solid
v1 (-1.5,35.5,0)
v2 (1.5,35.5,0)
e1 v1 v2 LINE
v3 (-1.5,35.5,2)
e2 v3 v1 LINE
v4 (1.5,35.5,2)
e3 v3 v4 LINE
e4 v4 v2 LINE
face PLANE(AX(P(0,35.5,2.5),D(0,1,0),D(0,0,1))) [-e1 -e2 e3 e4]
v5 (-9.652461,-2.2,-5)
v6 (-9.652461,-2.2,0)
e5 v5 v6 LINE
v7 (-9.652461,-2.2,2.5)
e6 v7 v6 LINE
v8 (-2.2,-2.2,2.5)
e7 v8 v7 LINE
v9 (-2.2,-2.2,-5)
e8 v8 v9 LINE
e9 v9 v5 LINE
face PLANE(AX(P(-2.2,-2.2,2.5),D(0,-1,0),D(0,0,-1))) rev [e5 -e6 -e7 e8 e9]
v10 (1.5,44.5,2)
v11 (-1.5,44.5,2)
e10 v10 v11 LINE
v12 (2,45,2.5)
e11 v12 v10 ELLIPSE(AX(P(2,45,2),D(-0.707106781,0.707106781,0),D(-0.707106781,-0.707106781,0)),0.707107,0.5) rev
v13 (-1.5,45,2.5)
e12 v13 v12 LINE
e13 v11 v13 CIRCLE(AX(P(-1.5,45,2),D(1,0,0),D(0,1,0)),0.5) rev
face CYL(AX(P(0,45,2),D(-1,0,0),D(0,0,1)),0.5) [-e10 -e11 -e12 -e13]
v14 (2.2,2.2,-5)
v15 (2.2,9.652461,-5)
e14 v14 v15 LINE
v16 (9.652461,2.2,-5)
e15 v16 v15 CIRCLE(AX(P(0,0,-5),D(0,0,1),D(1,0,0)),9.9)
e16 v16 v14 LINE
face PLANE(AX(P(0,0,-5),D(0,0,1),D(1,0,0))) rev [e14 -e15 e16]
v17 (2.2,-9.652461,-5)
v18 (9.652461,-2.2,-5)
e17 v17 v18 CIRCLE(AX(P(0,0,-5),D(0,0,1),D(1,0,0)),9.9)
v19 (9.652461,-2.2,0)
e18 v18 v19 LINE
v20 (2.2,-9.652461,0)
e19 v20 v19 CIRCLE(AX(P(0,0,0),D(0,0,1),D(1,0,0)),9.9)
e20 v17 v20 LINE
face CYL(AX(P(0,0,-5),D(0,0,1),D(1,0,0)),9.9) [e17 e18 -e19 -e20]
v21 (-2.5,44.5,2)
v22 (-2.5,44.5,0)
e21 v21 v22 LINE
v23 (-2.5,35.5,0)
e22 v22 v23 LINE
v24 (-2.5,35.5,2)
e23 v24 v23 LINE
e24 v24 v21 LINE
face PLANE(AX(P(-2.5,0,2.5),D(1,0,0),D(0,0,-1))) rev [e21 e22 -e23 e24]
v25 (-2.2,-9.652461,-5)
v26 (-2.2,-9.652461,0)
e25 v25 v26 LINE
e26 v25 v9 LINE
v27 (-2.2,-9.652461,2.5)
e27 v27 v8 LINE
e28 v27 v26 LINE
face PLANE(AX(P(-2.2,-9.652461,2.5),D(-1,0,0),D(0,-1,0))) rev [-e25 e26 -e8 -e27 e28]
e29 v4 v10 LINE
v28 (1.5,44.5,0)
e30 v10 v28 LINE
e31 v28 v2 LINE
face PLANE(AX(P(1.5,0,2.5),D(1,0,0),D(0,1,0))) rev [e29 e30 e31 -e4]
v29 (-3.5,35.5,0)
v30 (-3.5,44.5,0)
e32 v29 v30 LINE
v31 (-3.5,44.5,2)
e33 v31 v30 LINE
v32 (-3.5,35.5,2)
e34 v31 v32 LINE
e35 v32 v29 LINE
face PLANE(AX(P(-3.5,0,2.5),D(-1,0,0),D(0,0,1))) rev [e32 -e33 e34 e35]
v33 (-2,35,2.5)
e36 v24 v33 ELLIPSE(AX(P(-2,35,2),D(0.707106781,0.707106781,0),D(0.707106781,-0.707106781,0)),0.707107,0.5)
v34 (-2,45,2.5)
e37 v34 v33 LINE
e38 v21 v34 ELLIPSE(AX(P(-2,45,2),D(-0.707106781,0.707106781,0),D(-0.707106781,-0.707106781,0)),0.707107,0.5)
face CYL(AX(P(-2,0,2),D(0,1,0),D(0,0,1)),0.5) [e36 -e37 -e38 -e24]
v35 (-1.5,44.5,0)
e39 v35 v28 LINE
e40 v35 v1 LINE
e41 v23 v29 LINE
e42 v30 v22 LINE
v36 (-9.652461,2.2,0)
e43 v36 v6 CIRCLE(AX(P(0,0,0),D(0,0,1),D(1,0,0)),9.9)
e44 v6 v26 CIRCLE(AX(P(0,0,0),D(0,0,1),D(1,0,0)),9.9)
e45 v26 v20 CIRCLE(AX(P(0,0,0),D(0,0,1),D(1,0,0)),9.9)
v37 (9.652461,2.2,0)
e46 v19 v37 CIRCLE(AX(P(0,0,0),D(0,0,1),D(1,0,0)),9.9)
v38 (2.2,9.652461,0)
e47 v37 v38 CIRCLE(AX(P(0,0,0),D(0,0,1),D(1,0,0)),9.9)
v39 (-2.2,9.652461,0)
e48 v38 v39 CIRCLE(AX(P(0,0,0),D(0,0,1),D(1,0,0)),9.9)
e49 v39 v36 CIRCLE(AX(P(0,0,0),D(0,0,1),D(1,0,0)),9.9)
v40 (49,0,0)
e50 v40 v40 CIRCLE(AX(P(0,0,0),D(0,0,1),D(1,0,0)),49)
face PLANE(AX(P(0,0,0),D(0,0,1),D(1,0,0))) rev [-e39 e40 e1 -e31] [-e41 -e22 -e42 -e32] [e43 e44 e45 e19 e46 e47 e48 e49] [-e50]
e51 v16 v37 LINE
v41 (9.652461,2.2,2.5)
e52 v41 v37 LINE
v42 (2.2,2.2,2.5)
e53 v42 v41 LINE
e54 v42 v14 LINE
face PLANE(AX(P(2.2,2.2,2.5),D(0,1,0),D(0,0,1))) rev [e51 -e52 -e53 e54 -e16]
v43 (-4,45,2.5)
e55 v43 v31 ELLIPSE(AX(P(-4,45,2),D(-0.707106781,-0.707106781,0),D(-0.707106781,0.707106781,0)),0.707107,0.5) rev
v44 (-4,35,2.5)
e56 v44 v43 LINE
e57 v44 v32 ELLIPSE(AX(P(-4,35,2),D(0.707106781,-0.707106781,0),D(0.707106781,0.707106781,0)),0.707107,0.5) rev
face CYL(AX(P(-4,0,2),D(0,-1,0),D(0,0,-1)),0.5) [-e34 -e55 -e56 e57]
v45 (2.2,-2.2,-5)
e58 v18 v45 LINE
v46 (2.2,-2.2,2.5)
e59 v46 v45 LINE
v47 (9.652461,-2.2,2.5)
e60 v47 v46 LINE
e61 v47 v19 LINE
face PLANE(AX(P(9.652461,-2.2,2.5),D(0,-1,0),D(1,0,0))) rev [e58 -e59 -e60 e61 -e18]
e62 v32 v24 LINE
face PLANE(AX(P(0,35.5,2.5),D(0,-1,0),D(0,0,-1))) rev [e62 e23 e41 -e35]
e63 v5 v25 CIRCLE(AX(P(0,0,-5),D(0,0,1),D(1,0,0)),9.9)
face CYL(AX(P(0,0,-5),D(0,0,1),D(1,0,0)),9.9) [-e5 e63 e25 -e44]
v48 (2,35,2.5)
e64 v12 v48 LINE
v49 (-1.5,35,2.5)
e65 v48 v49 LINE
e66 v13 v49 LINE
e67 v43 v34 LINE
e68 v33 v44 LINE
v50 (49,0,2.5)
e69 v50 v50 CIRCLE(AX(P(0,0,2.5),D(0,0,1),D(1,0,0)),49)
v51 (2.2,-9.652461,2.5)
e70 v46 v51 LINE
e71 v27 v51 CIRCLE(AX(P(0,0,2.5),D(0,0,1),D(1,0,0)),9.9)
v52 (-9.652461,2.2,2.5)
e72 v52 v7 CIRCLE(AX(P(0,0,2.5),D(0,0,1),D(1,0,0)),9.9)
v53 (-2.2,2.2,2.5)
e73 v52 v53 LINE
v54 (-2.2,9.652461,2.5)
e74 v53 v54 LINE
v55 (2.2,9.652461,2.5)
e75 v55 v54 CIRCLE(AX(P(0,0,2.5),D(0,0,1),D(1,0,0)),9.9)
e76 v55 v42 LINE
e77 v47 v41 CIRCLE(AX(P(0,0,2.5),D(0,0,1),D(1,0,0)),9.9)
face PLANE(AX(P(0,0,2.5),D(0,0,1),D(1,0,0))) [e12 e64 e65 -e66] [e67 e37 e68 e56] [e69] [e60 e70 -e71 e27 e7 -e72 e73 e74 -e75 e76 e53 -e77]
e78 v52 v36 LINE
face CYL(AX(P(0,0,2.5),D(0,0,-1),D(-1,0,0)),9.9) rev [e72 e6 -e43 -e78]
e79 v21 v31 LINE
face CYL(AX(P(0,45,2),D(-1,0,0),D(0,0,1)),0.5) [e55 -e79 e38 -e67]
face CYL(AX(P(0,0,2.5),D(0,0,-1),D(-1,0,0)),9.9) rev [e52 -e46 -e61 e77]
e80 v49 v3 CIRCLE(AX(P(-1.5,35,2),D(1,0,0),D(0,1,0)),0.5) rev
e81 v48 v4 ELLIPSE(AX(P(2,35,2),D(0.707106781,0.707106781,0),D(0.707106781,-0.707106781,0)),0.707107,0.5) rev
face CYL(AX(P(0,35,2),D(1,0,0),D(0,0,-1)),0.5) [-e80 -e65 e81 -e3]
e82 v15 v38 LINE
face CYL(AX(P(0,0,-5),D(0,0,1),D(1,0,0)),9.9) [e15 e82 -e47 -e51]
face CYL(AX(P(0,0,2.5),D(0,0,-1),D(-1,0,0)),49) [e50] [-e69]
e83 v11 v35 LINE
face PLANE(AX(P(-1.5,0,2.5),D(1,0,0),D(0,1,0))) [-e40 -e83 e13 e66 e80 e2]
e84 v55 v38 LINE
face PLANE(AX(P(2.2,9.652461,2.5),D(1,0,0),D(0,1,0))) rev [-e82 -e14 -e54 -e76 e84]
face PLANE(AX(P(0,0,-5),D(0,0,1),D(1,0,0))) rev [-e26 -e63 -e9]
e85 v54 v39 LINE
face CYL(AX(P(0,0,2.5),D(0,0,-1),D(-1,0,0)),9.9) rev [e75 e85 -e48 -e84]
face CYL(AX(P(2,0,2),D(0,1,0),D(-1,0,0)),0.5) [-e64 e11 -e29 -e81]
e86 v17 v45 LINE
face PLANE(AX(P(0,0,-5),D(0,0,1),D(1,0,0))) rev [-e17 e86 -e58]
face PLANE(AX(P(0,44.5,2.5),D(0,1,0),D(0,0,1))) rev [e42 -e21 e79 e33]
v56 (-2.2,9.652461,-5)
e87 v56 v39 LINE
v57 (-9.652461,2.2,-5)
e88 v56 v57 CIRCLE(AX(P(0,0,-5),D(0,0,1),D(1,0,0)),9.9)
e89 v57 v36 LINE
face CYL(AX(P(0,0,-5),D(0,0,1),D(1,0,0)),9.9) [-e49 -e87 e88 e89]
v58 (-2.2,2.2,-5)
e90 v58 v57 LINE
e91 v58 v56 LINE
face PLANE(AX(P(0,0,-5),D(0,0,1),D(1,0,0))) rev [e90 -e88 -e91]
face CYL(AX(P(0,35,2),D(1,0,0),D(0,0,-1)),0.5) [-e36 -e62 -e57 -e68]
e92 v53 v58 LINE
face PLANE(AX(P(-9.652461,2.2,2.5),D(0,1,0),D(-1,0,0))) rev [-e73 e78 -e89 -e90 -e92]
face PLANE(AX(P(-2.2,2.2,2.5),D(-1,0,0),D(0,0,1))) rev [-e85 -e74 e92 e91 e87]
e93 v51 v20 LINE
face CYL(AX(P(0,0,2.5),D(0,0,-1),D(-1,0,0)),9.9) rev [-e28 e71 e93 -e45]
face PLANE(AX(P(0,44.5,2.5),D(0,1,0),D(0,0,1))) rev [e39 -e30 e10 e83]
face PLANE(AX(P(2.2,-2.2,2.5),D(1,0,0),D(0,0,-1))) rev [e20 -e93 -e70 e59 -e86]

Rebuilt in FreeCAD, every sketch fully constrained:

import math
import FreeCAD as App
import Part
import Sketcher
from FreeCAD import Vector
Q = App.Units.Quantity


def edges_at(feature, points):
    """Names of the edges that pass closest to the given points."""
    edges = feature.Shape.Edges
    near = lambda p: min(range(len(edges)), key=lambda i: edges[i].distToShape(Part.Vertex(*p))[0])
    return sorted({f"Edge{near(p) + 1}" for p in points})


def add_polygon(sketch, points):
    """Adds a closed chain of lines whose ends are joined by coincident constraints."""
    first, n = sketch.GeometryCount, len(points)
    for a, b in zip(points, points[1:] + points[:1]):
        sketch.addGeometry(Part.LineSegment(App.Vector(*a, 0), App.Vector(*b, 0)), False)
    for i in range(n):
        sketch.addConstraint(Sketcher.Constraint("Coincident", first + i, 2, first + (i + 1) % n, 1))

doc = App.newDocument("Part")
params = doc.addObject("Spreadsheet::Sheet", "Params")
for row, (alias, value) in enumerate([
    ("sketch1_diameter", "98 mm"),
    ("sketch1_diameter2", "19.8 mm"),
    ("sketch1_width", "1 mm"),
    ("sketch1_width2", "3 mm"),
    ("sketch1_height", "9 mm"),
    ("pad1_length", "2.5 mm"),
    ("fillet_radius", "0.5 mm"),
    ("sketch2_radius", "9.9 mm"),
    ("pad2_length", "5 mm"),
    ("sketch3_radius", "9.9 mm"),
    ("pad3_length", "5 mm"),
    ("sketch4_radius", "9.9 mm"),
    ("pad4_length", "5 mm"),
    ("sketch5_radius", "9.9 mm"),
    ("pad5_length", "5 mm"),
    ("sketch6_radius", "9.9 mm"),
    ("pad6_length", "2.5 mm"),
], start=1):
    params.set(f"A{row}", alias)
    params.set(f"B{row}", "=" + value)
    params.setAlias(f"B{row}", alias)

body = doc.addObject("PartDesign::Body", "Body")

# Sketch on XY plane
sketch1 = doc.addObject("Sketcher::SketchObject", "Sketch")
body.addObject(sketch1)
sketch1.AttachmentSupport = (doc.XY_Plane, [""])
sketch1.MapMode = "FlatFace"
sketch1.addGeometry(Part.Circle(Vector(0, 0, 0), Vector(0, 0, 1), 49), False)  # 0
sketch1.addGeometry(Part.Circle(Vector(0, 0, 0), Vector(0, 0, 1), 9.9), False)  # 1
add_polygon(sketch1, [(-2.5, 35.5), (-3.5, 35.5), (-3.5, 44.5), (-2.5, 44.5)])  # lines 2-5
add_polygon(sketch1, [(1.5, 35.5), (-1.5, 35.5), (-1.5, 44.5), (1.5, 44.5)])  # lines 6-9
sketch1.addConstraint([
    Sketcher.Constraint("Horizontal", 2),
    Sketcher.Constraint("Vertical", 3),
    Sketcher.Constraint("Horizontal", 4),
    Sketcher.Constraint("Vertical", 5),
    Sketcher.Constraint("Horizontal", 6),
    Sketcher.Constraint("Vertical", 7),
    Sketcher.Constraint("Horizontal", 8),
    Sketcher.Constraint("Vertical", 9),
    Sketcher.Constraint("Coincident", 0, 3, -1, 1),
    Sketcher.Constraint("Coincident", 1, 3, -1, 1),
    Sketcher.Constraint("Horizontal", 5, 2, 6, 2),
    Sketcher.Constraint("Horizontal", 4, 2, 7, 2),
    Sketcher.Constraint("Diameter", 0, Q("98 mm")),
    Sketcher.Constraint("Diameter", 1, Q("19.8 mm")),
    Sketcher.Constraint("DistanceX", 2, 2, 2, 1, Q("1 mm")),
    Sketcher.Constraint("DistanceX", 6, 2, 6, 1, Q("3 mm")),
    Sketcher.Constraint("DistanceY", 3, 1, 3, 2, Q("9 mm")),
    Sketcher.Constraint("DistanceX", 5, 2, 6, 2, Q("1 mm")),
    Sketcher.Constraint("DistanceX", 2, 2, -1, 1, Q("3.5 mm")),
    Sketcher.Constraint("DistanceY", -1, 1, 2, 2, Q("35.5 mm")),
])
sketch1.setExpression("Constraints[20]", "Params.sketch1_diameter")
sketch1.setExpression("Constraints[21]", "Params.sketch1_diameter2")
sketch1.setExpression("Constraints[22]", "Params.sketch1_width")
sketch1.setExpression("Constraints[23]", "Params.sketch1_width2")
sketch1.setExpression("Constraints[24]", "Params.sketch1_height")
pad1 = doc.addObject("PartDesign::Pad", "Pad")
body.addObject(pad1)
pad1.Profile = sketch1
pad1.setExpression("Length", "Params.pad1_length")
doc.recompute()

fillet = doc.addObject("PartDesign::Fillet", "Fillet")
body.addObject(fillet)
fillet.Base = (pad1, edges_at(pad1, [
    (0, 35.5, 2.5),
    (0, 44.5, 2.5),
    (-3, 44.5, 2.5),
    (-2.5, 40, 2.5),
    (-3, 35.5, 2.5),
    (-3.5, 40, 2.5),
    (1.5, 40, 2.5),
]))
fillet.setExpression("Radius", "Params.fillet_radius")
body2 = doc.addObject("PartDesign::Body", "Body001")

# Sketch on XY plane
sketch2 = doc.addObject("Sketcher::SketchObject", "Sketch001")
body2.addObject(sketch2)
sketch2.AttachmentSupport = (doc.getObject("XY_Plane001"), [""])
sketch2.MapMode = "FlatFace"
sketch2.AttachmentOffset = App.Placement(Vector(0, 0, -5), App.Rotation())
sketch2.addGeometry([
    Part.ArcOfCircle(Part.Circle(Vector(0, 0, 0), Vector(0, 0, 1), 10), math.radians(13), math.radians(77)),
    Part.LineSegment(Vector(2, 10, 0), Vector(2, 2, 0)),
    Part.LineSegment(Vector(2, 2, 0), Vector(10, 2, 0)),
], False)
sketch2.addConstraint([
    Sketcher.Constraint("Coincident", 0, 2, 1, 1),
    Sketcher.Constraint("Coincident", 1, 2, 2, 1),
    Sketcher.Constraint("Coincident", 2, 2, 0, 1),
    Sketcher.Constraint("Vertical", 1),
    Sketcher.Constraint("Horizontal", 2),
    Sketcher.Constraint("Coincident", 0, 3, -1, 1),
    Sketcher.Constraint("Equal", 2, 1),
    Sketcher.Constraint("Radius", 0, Q("9.9 mm")),
    Sketcher.Constraint("DistanceX", -1, 1, 0, 2, Q("2.2 mm")),
])
sketch2.setExpression("Constraints[7]", "Params.sketch2_radius")
pad2 = doc.addObject("PartDesign::Pad", "Pad001")
body2.addObject(pad2)
pad2.Profile = sketch2
pad2.setExpression("Length", "Params.pad2_length")
body3 = doc.addObject("PartDesign::Body", "Body002")

# Sketch on XY plane
sketch3 = doc.addObject("Sketcher::SketchObject", "Sketch002")
body3.addObject(sketch3)
sketch3.AttachmentSupport = (doc.getObject("XY_Plane002"), [""])
sketch3.MapMode = "FlatFace"
sketch3.AttachmentOffset = App.Placement(Vector(0, 0, -5), App.Rotation())
sketch3.addGeometry([
    Part.LineSegment(Vector(-2, 2, 0), Vector(-2, 10, 0)),
    Part.ArcOfCircle(Part.Circle(Vector(0, 0, 0), Vector(0, 0, 1), 10), math.radians(103), math.radians(167)),
    Part.LineSegment(Vector(-10, 2, 0), Vector(-2, 2, 0)),
], False)
sketch3.addConstraint([
    Sketcher.Constraint("Coincident", 0, 2, 1, 1),
    Sketcher.Constraint("Coincident", 1, 2, 2, 1),
    Sketcher.Constraint("Coincident", 2, 2, 0, 1),
    Sketcher.Constraint("Vertical", 0),
    Sketcher.Constraint("Horizontal", 2),
    Sketcher.Constraint("Coincident", 1, 3, -1, 1),
    Sketcher.Constraint("Equal", 2, 0),
    Sketcher.Constraint("Radius", 1, Q("9.9 mm")),
    Sketcher.Constraint("DistanceX", 0, 2, -1, 1, Q("2.2 mm")),
])
sketch3.setExpression("Constraints[7]", "Params.sketch3_radius")
pad3 = doc.addObject("PartDesign::Pad", "Pad002")
body3.addObject(pad3)
pad3.Profile = sketch3
pad3.setExpression("Length", "Params.pad3_length")
body4 = doc.addObject("PartDesign::Body", "Body003")

# Sketch on XY plane
sketch4 = doc.addObject("Sketcher::SketchObject", "Sketch003")
body4.addObject(sketch4)
sketch4.AttachmentSupport = (doc.getObject("XY_Plane003"), [""])
sketch4.MapMode = "FlatFace"
sketch4.AttachmentOffset = App.Placement(Vector(0, 0, -5), App.Rotation())
sketch4.addGeometry([
    Part.LineSegment(Vector(-2, -10, 0), Vector(-2, -2, 0)),
    Part.LineSegment(Vector(-2, -2, 0), Vector(-10, -2, 0)),
    Part.ArcOfCircle(Part.Circle(Vector(0, 0, 0), Vector(0, 0, 1), 10), math.radians(-167), math.radians(-103)),
], False)
sketch4.addConstraint([
    Sketcher.Constraint("Coincident", 0, 2, 1, 1),
    Sketcher.Constraint("Coincident", 1, 2, 2, 1),
    Sketcher.Constraint("Coincident", 2, 2, 0, 1),
    Sketcher.Constraint("Vertical", 0),
    Sketcher.Constraint("Horizontal", 1),
    Sketcher.Constraint("Coincident", 2, 3, -1, 1),
    Sketcher.Constraint("Equal", 1, 0),
    Sketcher.Constraint("Radius", 2, Q("9.9 mm")),
    Sketcher.Constraint("DistanceX", 0, 2, -1, 1, Q("2.2 mm")),
])
sketch4.setExpression("Constraints[7]", "Params.sketch4_radius")
pad4 = doc.addObject("PartDesign::Pad", "Pad003")
body4.addObject(pad4)
pad4.Profile = sketch4
pad4.setExpression("Length", "Params.pad4_length")
body5 = doc.addObject("PartDesign::Body", "Body004")

# Sketch on XY plane
sketch5 = doc.addObject("Sketcher::SketchObject", "Sketch004")
body5.addObject(sketch5)
sketch5.AttachmentSupport = (doc.getObject("XY_Plane004"), [""])
sketch5.MapMode = "FlatFace"
sketch5.AttachmentOffset = App.Placement(Vector(0, 0, -5), App.Rotation())
sketch5.addGeometry([
    Part.LineSegment(Vector(10, -2, 0), Vector(2, -2, 0)),
    Part.LineSegment(Vector(2, -2, 0), Vector(2, -10, 0)),
    Part.ArcOfCircle(Part.Circle(Vector(0, 0, 0), Vector(0, 0, 1), 10), math.radians(-77), math.radians(-13)),
], False)
sketch5.addConstraint([
    Sketcher.Constraint("Coincident", 0, 2, 1, 1),
    Sketcher.Constraint("Coincident", 1, 2, 2, 1),
    Sketcher.Constraint("Coincident", 2, 2, 0, 1),
    Sketcher.Constraint("Horizontal", 0),
    Sketcher.Constraint("Vertical", 1),
    Sketcher.Constraint("Coincident", 2, 3, -1, 1),
    Sketcher.Constraint("Equal", 0, 1),
    Sketcher.Constraint("Radius", 2, Q("9.9 mm")),
    Sketcher.Constraint("DistanceX", -1, 1, 0, 2, Q("2.2 mm")),
])
sketch5.setExpression("Constraints[7]", "Params.sketch5_radius")
pad5 = doc.addObject("PartDesign::Pad", "Pad004")
body5.addObject(pad5)
pad5.Profile = sketch5
pad5.setExpression("Length", "Params.pad5_length")
body.AllowCompound = True
doc.recompute()

boolean = doc.addObject("PartDesign::Boolean", "Boolean")
body.addObject(boolean)
boolean.Type = "Fuse"
boolean.addObjects([body2])
doc.recompute()

boolean2 = doc.addObject("PartDesign::Boolean", "Boolean001")
body.addObject(boolean2)
boolean2.Type = "Fuse"
boolean2.addObjects([body3])
doc.recompute()

boolean3 = doc.addObject("PartDesign::Boolean", "Boolean002")
body.addObject(boolean3)
boolean3.Type = "Fuse"
boolean3.addObjects([body4])
doc.recompute()

boolean4 = doc.addObject("PartDesign::Boolean", "Boolean003")
body.addObject(boolean4)
boolean4.Type = "Fuse"
boolean4.addObjects([body5])

# Sketch on XY plane
sketch6 = doc.addObject("Sketcher::SketchObject", "Sketch005")
body.addObject(sketch6)
sketch6.AttachmentSupport = (doc.XY_Plane, [""])
sketch6.MapMode = "FlatFace"
sketch6.addGeometry([
    Part.LineSegment(Vector(-2, 2, 0), Vector(-2, 10, 0)),  # 0
    Part.ArcOfCircle(Part.Circle(Vector(0, 0, 0), Vector(0, 0, 1), 10), math.radians(103), math.radians(167)),  # 1
    Part.LineSegment(Vector(-10, 2, 0), Vector(-2, 2, 0)),  # 2
    Part.LineSegment(Vector(-2, -2, 0), Vector(-10, -2, 0)),  # 3
    Part.ArcOfCircle(Part.Circle(Vector(0, 0, 0), Vector(0, 0, 1), 10), math.radians(-167), math.radians(-103)),  # 4
    Part.LineSegment(Vector(-2, -10, 0), Vector(-2, -2, 0)),  # 5
    Part.LineSegment(Vector(2, -2, 0), Vector(2, -10, 0)),  # 6
    Part.ArcOfCircle(Part.Circle(Vector(0, 0, 0), Vector(0, 0, 1), 10), math.radians(-77), math.radians(-13)),  # 7
    Part.LineSegment(Vector(10, -2, 0), Vector(2, -2, 0)),  # 8
    Part.LineSegment(Vector(2, 2, 0), Vector(10, 2, 0)),  # 9
    Part.ArcOfCircle(Part.Circle(Vector(0, 0, 0), Vector(0, 0, 1), 10), math.radians(13), math.radians(77)),  # 10
    Part.LineSegment(Vector(2, 10, 0), Vector(2, 2, 0)),  # 11
], False)
sketch6.addConstraint([
    Sketcher.Constraint("Coincident", 0, 2, 1, 1),
    Sketcher.Constraint("Coincident", 1, 2, 2, 1),
    Sketcher.Constraint("Coincident", 2, 2, 0, 1),
    Sketcher.Constraint("Coincident", 3, 2, 4, 1),
    Sketcher.Constraint("Coincident", 4, 2, 5, 1),
    Sketcher.Constraint("Coincident", 5, 2, 3, 1),
    Sketcher.Constraint("Coincident", 6, 2, 7, 1),
    Sketcher.Constraint("Coincident", 7, 2, 8, 1),
    Sketcher.Constraint("Coincident", 8, 2, 6, 1),
    Sketcher.Constraint("Coincident", 9, 2, 10, 1),
    Sketcher.Constraint("Coincident", 10, 2, 11, 1),
    Sketcher.Constraint("Coincident", 11, 2, 9, 1),
    Sketcher.Constraint("Vertical", 0),
    Sketcher.Constraint("Horizontal", 2),
    Sketcher.Constraint("Horizontal", 3),
    Sketcher.Constraint("Vertical", 5),
    Sketcher.Constraint("Vertical", 6),
    Sketcher.Constraint("Horizontal", 8),
    Sketcher.Constraint("Horizontal", 9),
    Sketcher.Constraint("Vertical", 11),
    Sketcher.Constraint("Coincident", 1, 3, -1, 1),
    Sketcher.Constraint("Coincident", 4, 3, -1, 1),
    Sketcher.Constraint("Coincident", 7, 3, -1, 1),
    Sketcher.Constraint("Coincident", 10, 3, -1, 1),
    Sketcher.Constraint("Equal", 1, 4),
    Sketcher.Constraint("Equal", 4, 7),
    Sketcher.Constraint("Equal", 7, 10),
    Sketcher.Constraint("Symmetric", 2, 2, 8, 2, -1, 1),
    Sketcher.Constraint("Symmetric", 5, 2, 11, 2, -1, 1),
    Sketcher.Constraint("Symmetric", 5, 2, 8, 2, -2),
    Sketcher.Constraint("Equal", 9, 0),
    Sketcher.Constraint("Radius", 1, Q("9.9 mm")),
    Sketcher.Constraint("DistanceX", 0, 2, -1, 1, Q("2.2 mm")),
])
sketch6.setExpression("Constraints[31]", "Params.sketch6_radius")
pad6 = doc.addObject("PartDesign::Pad", "Pad005")
body.addObject(pad6)
pad6.Profile = sketch6
pad6.setExpression("Length", "Params.pad6_length")

doc.recompute()
